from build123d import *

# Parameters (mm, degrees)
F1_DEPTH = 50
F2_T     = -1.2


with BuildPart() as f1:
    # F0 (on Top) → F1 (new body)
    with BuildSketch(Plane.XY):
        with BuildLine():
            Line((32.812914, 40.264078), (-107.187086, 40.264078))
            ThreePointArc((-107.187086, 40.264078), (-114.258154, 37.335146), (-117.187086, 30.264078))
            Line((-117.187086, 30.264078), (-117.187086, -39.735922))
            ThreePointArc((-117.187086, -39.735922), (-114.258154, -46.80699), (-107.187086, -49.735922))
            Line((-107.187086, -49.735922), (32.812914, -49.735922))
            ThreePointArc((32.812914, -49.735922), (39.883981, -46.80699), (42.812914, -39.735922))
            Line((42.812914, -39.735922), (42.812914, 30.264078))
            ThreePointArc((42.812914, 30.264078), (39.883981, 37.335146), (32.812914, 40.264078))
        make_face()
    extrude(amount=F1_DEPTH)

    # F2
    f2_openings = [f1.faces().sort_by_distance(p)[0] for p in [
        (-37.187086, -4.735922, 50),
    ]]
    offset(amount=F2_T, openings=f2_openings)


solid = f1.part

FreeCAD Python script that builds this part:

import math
import FreeCAD as App
import Part
import Sketcher
from FreeCAD import Vector
Q = App.Units.Quantity


def faces_at(feature, points):
    """Names of the faces that lie closest to the given points."""
    faces = feature.Shape.Faces
    near = lambda p: min(range(len(faces)), key=lambda i: faces[i].distToShape(Part.Vertex(*p))[0])
    return sorted({f"Face{near(p) + 1}" for p in points})

doc = App.newDocument("Part")
body = doc.addObject("PartDesign::Body", "Body")

sketch1 = body.newObject("Sketcher::SketchObject", "Sketch")
sketch1.AttachmentSupport = (doc.getObject("XY_Plane"), [""])
sketch1.MapMode = "FlatFace"
sketch1.addGeometry([
    Part.LineSegment(Vector(33, 40, 0), Vector(-107, 40, 0)),
    Part.ArcOfCircle(Part.Circle(Vector(-107, 30, 0), Vector(0, 0, 1), 10), math.radians(90), math.radians(180)),
    Part.LineSegment(Vector(-117, 30, 0), Vector(-117, -40, 0)),
    Part.ArcOfCircle(Part.Circle(Vector(-107, -40, 0), Vector(0, 0, 1), 10), math.radians(180), math.radians(270)),
    Part.LineSegment(Vector(-107, -50, 0), Vector(33, -50, 0)),
    Part.ArcOfCircle(Part.Circle(Vector(33, -40, 0), Vector(0, 0, 1), 10), math.radians(-90), math.radians(0)),
    Part.LineSegment(Vector(43, -40, 0), Vector(43, 30, 0)),
    Part.ArcOfCircle(Part.Circle(Vector(33, 30, 0), Vector(0, 0, 1), 10), math.radians(0), math.radians(90)),
], False)
sketch1.addConstraint([
    Sketcher.Constraint("Tangent", 0, 2, 1, 1),
    Sketcher.Constraint("Tangent", 1, 2, 2, 1),
    Sketcher.Constraint("Tangent", 2, 2, 3, 1),
    Sketcher.Constraint("Tangent", 3, 2, 4, 1),
    Sketcher.Constraint("Tangent", 4, 2, 5, 1),
    Sketcher.Constraint("Tangent", 5, 2, 6, 1),
    Sketcher.Constraint("Tangent", 6, 2, 7, 1),
    Sketcher.Constraint("Tangent", 7, 2, 0, 1),
    Sketcher.Constraint("Horizontal", 0),
    Sketcher.Constraint("Vertical", 2),
    Sketcher.Constraint("Horizontal", 4),
    Sketcher.Constraint("Vertical", 6),
    Sketcher.Constraint("Equal", 1, 3),
    Sketcher.Constraint("Equal", 3, 5),
    Sketcher.Constraint("Equal", 5, 7),
    Sketcher.Constraint("Radius", 1, Q("9.999999 mm")),
    Sketcher.Constraint("DistanceX", 0, 2, 0, 1, Q("140 mm")),
    Sketcher.Constraint("DistanceY", 2, 2, 2, 1, Q("70 mm")),
    Sketcher.Constraint("DistanceY", -1, 1, 1, 3, Q("30.264079 mm")),
    Sketcher.Constraint("DistanceX", 1, 3, -1, 1, Q("107.187087 mm")),
])
pad1 = body.newObject("PartDesign::Pad", "Pad")
pad1.Profile = sketch1
pad1.Length = 50
doc.recompute()

thickness = body.newObject("PartDesign::Thickness", "Thickness")
thickness.Base = (pad1, faces_at(pad1, [(-37.187, -4.736, 50)]))
thickness.Value = 1.2
thickness.Reversed = True
thickness.Join = "Arc"

doc.recompute()
